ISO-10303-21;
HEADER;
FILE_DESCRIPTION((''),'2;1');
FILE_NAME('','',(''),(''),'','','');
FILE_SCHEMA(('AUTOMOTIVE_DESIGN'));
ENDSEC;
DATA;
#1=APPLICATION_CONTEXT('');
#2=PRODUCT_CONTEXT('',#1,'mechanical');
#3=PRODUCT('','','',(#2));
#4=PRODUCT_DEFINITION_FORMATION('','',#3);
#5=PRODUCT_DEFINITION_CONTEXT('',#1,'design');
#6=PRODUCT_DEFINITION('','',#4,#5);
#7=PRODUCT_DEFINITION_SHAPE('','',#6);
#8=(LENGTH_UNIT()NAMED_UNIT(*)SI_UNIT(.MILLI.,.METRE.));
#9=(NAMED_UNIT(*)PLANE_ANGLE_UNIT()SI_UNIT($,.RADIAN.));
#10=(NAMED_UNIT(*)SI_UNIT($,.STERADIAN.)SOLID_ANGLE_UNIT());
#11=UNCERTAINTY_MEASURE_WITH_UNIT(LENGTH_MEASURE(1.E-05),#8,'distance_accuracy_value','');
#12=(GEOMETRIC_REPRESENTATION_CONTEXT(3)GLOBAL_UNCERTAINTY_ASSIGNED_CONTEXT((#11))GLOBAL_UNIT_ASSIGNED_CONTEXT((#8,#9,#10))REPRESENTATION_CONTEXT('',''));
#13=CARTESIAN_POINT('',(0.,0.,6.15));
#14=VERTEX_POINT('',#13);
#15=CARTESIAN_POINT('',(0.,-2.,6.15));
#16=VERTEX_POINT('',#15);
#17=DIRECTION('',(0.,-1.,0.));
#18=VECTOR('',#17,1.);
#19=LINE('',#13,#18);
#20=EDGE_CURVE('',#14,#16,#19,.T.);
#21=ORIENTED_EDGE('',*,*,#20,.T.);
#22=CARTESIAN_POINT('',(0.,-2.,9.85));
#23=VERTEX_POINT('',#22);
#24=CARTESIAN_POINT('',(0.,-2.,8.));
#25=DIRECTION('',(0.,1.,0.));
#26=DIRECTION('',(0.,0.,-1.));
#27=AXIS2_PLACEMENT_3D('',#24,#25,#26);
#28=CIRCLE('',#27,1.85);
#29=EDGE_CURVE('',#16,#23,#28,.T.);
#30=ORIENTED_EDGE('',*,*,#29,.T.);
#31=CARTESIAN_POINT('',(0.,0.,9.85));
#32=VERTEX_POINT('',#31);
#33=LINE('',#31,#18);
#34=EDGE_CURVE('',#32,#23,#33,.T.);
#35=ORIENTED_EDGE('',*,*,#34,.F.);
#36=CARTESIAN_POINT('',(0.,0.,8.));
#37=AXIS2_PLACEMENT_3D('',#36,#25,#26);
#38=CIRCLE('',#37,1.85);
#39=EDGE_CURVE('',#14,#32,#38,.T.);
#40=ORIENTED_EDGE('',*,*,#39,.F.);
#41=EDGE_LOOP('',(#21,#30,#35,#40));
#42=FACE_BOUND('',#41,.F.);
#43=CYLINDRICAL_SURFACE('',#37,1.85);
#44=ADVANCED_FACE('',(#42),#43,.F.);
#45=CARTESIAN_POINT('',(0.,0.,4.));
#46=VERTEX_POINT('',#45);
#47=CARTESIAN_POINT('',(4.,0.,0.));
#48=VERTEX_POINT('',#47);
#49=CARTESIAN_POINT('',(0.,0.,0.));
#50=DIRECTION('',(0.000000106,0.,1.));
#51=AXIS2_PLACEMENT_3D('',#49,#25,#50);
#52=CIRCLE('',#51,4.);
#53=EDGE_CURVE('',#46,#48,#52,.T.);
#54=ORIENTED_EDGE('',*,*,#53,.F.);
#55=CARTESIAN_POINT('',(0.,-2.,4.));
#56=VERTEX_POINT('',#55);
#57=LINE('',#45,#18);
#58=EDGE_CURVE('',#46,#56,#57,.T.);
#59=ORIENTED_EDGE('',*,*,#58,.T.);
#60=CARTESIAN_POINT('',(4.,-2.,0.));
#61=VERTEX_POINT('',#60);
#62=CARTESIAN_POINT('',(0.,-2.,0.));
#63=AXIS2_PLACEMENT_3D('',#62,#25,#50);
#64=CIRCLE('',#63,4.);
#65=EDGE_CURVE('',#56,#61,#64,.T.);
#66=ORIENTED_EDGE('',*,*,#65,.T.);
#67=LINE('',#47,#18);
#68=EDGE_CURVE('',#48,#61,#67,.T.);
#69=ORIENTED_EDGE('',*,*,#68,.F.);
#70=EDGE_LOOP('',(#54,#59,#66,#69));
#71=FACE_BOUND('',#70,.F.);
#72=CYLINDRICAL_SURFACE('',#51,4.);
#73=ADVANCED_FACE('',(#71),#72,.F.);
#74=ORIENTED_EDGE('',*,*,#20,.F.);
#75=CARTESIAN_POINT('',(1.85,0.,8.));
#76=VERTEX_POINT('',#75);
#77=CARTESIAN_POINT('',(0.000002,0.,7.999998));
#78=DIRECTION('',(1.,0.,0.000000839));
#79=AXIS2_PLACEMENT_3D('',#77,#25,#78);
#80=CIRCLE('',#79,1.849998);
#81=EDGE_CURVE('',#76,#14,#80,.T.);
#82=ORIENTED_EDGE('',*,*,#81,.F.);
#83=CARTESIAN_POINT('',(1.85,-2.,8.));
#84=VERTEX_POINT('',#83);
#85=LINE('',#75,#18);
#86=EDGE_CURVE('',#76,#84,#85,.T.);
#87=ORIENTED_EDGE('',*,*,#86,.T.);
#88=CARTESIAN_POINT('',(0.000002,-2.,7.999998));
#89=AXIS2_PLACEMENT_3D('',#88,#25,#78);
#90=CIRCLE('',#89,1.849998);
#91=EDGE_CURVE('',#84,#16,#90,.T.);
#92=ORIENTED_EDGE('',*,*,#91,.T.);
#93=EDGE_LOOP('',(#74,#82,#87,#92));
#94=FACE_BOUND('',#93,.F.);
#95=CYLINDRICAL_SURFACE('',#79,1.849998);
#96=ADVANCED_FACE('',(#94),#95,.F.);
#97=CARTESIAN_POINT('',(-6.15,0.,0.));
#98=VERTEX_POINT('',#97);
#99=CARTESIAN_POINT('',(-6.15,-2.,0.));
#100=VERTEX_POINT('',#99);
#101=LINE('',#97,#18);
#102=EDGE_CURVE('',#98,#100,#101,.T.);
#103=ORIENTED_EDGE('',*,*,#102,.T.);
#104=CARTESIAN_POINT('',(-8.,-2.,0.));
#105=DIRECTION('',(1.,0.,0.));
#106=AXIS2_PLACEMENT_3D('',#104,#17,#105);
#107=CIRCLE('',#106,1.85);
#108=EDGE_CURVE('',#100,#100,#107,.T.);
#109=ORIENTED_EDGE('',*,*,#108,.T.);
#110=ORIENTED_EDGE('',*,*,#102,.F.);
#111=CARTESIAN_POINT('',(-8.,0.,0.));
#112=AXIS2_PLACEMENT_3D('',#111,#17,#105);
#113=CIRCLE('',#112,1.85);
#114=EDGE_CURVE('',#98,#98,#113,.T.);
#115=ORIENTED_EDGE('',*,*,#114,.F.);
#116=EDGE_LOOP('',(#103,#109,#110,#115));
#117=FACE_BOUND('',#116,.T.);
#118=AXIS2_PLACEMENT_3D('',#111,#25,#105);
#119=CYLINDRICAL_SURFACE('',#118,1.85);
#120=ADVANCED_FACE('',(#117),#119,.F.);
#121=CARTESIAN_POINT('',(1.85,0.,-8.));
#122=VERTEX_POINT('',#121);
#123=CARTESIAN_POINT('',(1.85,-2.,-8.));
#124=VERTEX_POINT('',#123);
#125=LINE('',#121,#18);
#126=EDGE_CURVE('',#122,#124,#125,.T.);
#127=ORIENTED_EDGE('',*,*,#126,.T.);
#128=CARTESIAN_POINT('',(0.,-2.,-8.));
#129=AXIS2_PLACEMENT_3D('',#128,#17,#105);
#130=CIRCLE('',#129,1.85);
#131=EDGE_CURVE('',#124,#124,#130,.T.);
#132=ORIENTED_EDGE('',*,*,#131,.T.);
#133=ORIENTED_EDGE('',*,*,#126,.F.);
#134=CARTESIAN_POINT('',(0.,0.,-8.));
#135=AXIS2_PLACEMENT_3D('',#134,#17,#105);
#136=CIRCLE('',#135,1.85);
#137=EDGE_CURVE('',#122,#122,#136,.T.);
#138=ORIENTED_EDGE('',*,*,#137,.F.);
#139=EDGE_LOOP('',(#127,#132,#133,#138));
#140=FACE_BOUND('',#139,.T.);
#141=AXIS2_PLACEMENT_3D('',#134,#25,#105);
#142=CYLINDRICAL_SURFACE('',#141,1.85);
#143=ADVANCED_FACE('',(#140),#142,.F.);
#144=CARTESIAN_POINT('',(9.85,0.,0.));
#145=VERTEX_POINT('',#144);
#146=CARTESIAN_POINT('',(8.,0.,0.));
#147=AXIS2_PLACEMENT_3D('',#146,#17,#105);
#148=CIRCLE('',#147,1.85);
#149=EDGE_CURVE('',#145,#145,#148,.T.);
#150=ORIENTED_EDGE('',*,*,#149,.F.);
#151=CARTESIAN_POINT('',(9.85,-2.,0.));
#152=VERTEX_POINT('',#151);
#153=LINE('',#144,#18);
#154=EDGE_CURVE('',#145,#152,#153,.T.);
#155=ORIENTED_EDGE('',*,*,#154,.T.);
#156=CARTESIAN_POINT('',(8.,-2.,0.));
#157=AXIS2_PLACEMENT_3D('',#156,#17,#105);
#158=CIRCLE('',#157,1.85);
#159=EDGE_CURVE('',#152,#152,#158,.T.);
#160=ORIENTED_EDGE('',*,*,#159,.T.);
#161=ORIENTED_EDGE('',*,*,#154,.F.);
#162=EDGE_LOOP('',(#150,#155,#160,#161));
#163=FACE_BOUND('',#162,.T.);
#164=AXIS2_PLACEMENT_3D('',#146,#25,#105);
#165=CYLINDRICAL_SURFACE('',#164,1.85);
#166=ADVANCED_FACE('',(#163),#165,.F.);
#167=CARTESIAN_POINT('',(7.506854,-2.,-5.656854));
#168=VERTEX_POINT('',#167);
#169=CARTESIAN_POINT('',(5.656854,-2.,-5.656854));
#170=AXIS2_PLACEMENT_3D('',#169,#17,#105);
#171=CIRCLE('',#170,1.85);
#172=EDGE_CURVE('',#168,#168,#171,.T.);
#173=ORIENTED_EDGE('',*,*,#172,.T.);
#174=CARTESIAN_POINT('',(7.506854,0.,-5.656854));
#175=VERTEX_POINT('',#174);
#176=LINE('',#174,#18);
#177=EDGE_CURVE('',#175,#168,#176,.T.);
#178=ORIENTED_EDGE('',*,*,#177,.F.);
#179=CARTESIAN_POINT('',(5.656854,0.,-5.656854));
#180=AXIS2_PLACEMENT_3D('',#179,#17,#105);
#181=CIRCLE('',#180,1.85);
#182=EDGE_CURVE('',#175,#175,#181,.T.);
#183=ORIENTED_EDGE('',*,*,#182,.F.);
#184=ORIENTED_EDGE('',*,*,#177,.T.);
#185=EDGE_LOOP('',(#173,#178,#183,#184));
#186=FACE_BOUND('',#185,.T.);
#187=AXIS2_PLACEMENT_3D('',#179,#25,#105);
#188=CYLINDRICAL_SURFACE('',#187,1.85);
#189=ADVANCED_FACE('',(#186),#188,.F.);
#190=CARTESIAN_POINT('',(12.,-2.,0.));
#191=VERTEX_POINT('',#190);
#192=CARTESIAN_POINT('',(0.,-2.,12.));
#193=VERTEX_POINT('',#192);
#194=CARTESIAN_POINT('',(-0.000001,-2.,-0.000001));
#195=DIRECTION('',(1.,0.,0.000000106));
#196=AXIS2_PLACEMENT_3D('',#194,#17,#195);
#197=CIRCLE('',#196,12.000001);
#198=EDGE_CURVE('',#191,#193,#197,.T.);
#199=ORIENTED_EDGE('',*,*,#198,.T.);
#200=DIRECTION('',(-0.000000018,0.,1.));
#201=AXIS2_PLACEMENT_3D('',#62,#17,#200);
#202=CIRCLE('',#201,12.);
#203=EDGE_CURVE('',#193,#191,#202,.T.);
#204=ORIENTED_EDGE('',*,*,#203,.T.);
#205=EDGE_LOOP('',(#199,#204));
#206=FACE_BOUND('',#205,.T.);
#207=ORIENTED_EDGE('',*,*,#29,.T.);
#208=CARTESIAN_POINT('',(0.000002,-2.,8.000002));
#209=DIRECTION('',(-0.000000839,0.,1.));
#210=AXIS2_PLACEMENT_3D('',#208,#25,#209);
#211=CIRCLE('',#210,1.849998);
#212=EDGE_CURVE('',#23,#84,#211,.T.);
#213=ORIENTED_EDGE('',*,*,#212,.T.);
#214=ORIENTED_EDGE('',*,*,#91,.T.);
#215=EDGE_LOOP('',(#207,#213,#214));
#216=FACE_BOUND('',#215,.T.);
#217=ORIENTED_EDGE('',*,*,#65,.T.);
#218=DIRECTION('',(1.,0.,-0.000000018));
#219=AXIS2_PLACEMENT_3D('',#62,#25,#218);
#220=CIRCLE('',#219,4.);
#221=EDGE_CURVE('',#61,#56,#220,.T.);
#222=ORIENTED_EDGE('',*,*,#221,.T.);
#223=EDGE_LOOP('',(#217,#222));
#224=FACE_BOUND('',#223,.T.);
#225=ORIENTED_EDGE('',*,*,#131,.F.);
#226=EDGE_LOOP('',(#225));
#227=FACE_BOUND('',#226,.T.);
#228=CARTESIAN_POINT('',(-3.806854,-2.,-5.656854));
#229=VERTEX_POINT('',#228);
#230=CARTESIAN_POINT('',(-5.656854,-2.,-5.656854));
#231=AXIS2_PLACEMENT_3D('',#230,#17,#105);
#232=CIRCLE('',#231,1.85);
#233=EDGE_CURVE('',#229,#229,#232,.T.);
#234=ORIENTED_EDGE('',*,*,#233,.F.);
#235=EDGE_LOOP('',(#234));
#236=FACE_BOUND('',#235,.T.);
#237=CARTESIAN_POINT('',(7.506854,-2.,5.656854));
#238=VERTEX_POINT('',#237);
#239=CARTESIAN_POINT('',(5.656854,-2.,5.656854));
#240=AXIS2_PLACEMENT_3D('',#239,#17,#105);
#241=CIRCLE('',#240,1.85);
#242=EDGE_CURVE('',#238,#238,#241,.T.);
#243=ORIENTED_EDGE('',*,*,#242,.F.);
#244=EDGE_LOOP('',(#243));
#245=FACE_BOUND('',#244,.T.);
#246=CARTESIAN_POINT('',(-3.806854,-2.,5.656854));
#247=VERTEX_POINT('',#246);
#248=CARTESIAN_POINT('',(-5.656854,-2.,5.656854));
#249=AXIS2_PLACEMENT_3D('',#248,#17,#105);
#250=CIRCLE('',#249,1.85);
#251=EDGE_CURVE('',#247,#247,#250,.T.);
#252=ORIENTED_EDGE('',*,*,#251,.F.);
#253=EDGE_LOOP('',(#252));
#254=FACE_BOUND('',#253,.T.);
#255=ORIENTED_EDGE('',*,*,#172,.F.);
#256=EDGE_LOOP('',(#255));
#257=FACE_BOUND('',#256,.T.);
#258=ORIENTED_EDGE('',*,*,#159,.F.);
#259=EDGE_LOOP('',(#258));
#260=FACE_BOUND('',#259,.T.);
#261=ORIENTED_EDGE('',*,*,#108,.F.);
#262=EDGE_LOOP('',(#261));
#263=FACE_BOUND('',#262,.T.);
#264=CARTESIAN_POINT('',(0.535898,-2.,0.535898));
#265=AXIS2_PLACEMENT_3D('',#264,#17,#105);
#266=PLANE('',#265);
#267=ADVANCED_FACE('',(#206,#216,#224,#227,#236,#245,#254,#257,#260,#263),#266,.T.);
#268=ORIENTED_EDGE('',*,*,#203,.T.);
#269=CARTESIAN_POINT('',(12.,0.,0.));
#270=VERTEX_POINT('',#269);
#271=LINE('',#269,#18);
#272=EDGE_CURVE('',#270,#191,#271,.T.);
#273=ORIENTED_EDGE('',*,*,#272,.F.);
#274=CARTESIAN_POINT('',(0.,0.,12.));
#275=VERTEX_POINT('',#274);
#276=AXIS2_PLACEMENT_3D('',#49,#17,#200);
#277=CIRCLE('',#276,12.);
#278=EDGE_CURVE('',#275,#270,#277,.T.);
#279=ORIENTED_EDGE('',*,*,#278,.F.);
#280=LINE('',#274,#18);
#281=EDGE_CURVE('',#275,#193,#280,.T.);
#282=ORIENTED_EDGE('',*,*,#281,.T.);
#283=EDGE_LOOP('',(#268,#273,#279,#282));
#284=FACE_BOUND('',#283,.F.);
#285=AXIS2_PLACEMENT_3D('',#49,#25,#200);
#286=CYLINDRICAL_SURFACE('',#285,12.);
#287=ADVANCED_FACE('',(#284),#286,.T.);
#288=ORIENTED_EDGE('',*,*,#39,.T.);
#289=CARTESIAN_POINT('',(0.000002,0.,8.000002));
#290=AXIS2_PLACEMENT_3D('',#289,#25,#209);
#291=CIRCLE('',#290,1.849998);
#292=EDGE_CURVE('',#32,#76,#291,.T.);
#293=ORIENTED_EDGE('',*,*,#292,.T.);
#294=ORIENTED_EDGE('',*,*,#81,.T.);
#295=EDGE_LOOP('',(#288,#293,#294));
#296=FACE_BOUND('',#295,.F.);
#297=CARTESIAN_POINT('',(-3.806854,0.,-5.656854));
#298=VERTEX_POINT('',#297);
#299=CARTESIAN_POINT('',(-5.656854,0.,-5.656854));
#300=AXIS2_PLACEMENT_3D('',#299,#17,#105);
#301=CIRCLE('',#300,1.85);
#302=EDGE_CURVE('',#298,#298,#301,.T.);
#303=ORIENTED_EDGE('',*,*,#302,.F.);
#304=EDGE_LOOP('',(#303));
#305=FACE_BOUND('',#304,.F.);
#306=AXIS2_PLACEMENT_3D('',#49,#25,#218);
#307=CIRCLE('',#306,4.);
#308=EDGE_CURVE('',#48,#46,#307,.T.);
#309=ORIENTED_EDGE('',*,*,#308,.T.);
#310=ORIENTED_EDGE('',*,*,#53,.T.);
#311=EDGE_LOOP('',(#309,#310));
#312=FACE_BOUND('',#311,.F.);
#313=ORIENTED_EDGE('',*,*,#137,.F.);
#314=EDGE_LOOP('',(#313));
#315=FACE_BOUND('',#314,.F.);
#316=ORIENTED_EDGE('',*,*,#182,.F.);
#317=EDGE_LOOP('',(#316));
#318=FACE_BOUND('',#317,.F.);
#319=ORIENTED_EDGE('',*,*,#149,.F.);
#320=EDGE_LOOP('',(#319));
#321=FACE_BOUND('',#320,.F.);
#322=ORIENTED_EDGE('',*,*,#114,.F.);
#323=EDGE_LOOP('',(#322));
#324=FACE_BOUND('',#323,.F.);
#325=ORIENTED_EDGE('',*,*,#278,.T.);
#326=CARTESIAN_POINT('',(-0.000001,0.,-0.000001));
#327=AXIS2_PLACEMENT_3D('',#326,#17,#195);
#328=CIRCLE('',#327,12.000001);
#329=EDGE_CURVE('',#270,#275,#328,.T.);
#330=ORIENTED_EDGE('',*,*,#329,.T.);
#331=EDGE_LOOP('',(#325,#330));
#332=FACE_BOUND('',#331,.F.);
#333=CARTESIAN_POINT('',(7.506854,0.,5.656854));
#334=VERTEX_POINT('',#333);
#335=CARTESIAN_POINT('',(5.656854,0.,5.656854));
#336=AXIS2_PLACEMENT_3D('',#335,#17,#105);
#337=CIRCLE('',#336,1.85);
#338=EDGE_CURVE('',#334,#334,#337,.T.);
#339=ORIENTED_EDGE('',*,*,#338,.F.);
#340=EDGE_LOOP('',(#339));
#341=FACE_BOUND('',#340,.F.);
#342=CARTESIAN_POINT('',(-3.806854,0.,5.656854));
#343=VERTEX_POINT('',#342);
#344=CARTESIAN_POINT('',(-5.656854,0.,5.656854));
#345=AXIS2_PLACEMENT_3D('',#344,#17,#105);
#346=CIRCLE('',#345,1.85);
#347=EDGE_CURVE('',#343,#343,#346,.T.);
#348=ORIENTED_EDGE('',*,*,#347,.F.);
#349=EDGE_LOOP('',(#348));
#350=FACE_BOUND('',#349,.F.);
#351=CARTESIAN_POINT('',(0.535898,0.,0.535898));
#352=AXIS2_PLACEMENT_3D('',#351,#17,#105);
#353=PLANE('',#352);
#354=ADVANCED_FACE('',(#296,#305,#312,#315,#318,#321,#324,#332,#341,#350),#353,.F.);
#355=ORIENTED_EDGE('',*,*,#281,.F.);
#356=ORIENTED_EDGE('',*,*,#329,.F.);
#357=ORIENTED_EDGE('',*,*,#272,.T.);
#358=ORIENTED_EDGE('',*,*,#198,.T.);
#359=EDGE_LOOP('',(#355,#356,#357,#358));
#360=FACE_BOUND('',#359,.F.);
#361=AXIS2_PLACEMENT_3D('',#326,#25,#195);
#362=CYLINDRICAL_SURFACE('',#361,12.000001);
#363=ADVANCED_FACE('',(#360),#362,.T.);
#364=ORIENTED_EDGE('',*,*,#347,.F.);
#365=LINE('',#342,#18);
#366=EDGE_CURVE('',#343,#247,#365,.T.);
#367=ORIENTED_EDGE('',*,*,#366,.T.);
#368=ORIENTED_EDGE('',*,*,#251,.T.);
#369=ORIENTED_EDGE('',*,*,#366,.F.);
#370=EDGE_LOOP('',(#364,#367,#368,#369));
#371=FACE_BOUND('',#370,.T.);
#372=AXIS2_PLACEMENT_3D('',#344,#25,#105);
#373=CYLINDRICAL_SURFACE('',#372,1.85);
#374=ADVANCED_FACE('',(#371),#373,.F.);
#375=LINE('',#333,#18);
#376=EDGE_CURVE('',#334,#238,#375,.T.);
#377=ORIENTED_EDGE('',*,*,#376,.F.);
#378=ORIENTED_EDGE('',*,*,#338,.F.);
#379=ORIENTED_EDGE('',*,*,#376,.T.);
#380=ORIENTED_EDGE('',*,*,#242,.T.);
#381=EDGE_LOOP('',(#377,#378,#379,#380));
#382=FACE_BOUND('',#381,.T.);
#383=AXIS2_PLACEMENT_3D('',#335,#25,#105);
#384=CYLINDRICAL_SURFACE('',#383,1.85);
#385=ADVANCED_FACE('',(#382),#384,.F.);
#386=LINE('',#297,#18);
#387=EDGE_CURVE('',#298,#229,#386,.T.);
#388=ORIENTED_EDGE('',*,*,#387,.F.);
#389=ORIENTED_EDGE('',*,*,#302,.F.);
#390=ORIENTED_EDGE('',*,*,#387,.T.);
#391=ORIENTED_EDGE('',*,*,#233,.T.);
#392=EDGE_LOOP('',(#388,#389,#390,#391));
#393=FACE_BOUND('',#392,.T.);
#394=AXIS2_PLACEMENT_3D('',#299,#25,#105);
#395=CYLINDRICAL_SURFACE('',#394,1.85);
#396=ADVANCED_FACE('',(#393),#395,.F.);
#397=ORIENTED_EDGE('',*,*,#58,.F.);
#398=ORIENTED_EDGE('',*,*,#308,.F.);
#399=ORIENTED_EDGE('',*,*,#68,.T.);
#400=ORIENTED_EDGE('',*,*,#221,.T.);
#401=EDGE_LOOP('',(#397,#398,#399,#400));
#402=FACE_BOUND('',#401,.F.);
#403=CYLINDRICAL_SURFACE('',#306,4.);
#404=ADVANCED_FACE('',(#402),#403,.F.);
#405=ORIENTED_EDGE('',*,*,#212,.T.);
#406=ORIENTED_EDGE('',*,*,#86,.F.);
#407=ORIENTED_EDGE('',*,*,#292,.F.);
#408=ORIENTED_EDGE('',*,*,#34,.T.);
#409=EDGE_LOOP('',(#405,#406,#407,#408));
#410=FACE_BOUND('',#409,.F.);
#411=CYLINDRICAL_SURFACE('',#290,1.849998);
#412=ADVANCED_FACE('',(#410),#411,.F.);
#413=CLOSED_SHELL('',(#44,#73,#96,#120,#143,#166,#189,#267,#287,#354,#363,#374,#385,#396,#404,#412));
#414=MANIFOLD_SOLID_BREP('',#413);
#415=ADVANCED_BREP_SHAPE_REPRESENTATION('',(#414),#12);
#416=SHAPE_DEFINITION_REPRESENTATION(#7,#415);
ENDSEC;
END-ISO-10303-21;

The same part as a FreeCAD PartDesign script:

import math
import FreeCAD as App
import Part
import Sketcher
from FreeCAD import Vector

doc = App.newDocument("Part")
body = doc.addObject("PartDesign::Body", "Body")

# Sketch on XZ plane
sketch1 = body.newObject("Sketcher::SketchObject", "Sketch")
sketch1.AttachmentSupport = (doc.getObject("XZ_Plane"), [""])
sketch1.MapMode = "FlatFace"
sketch1.addGeometry(Part.ArcOfCircle(Part.Circle(Vector(0, 0, 0), Vector(0, 0, 1), 12), math.radians(90.000001), math.radians(359.999999)), False)
sketch1.addGeometry(Part.ArcOfCircle(Part.Circle(Vector(-0.000001, -0.000001, 0), Vector(0, 0, 1), 12.000001), math.radians(0.000006), math.radians(89.999994)), False)
sketch1.addGeometry(Part.Circle(Vector(-5.656854, -5.656854, 0), Vector(0, 0, 1), 1.85), False)
sketch1.addGeometry(Part.Circle(Vector(-8, 0, 0), Vector(0, 0, 1), 1.85), False)
sketch1.addGeometry(Part.Circle(Vector(0, -8, 0), Vector(0, 0, 1), 1.85), False)
sketch1.addGeometry(Part.Circle(Vector(5.656854, -5.656854, 0), Vector(0, 0, 1), 1.85), False)
sketch1.addGeometry(Part.Circle(Vector(8, 0, 0), Vector(0, 0, 1), 1.85), False)
sketch1.addGeometry(Part.Circle(Vector(-5.656854, 5.656854, 0), Vector(0, 0, 1), 1.85), False)
sketch1.addGeometry(Part.ArcOfCircle(Part.Circle(Vector(0, 0, 0), Vector(0, 0, 1), 4), math.radians(0.000006), math.radians(89.999994)), False)
sketch1.addGeometry(Part.ArcOfCircle(Part.Circle(Vector(0, 0, 0), Vector(0, 0, 1), 4), math.radians(90.000001), math.radians(359.999999)), False)
sketch1.addGeometry(Part.ArcOfCircle(Part.Circle(Vector(0.000002, 7.999998, 0), Vector(0, 0, 1), 1.849998), math.radians(-90.000048), math.radians(0.000048)), False)
sketch1.addGeometry(Part.ArcOfCircle(Part.Circle(Vector(0, 8, 0), Vector(0, 0, 1), 1.85), math.radians(90), math.radians(270)), False)
sketch1.addGeometry(Part.ArcOfCircle(Part.Circle(Vector(0.000002, 8.000002, 0), Vector(0, 0, 1), 1.849998), math.radians(-0.000048), math.radians(90.000048)), False)
sketch1.addGeometry(Part.Circle(Vector(5.656854, 5.656854, 0), Vector(0, 0, 1), 1.85), False)
sketch1.addConstraint(Sketcher.Constraint("Tangent", 0, 1, 1, 2))
sketch1.addConstraint(Sketcher.Constraint("Coincident", 1, 1, 0, 2))
sketch1.addConstraint(Sketcher.Constraint("Tangent", 8, 1, 9, 2))
sketch1.addConstraint(Sketcher.Constraint("Coincident", 9, 1, 8, 2))
sketch1.addConstraint(Sketcher.Constraint("Tangent", 10, 1, 11, 2))
sketch1.addConstraint(Sketcher.Constraint("Tangent", 11, 1, 12, 2))
sketch1.addConstraint(Sketcher.Constraint("Tangent", 12, 1, 10, 2))
sketch1.addConstraint(Sketcher.Constraint("Coincident", 0, 3, -1, 1))
sketch1.addConstraint(Sketcher.Constraint("Coincident", 8, 3, -1, 1))
sketch1.addConstraint(Sketcher.Constraint("Equal", 2, 3))
sketch1.addConstraint(Sketcher.Constraint("Equal", 3, 4))
sketch1.addConstraint(Sketcher.Constraint("Equal", 4, 5))
sketch1.addConstraint(Sketcher.Constraint("Equal", 5, 6))
sketch1.addConstraint(Sketcher.Constraint("Equal", 6, 7))
sketch1.addConstraint(Sketcher.Constraint("Equal", 7, 10))
sketch1.addConstraint(Sketcher.Constraint("Equal", 12, 13))
sketch1.addConstraint(Sketcher.Constraint("Symmetric", 3, 3, 6, 3, -1, 1))
sketch1.addConstraint(Sketcher.Constraint("Symmetric", 5, 3, 7, 3, -1, 1))
sketch1.addConstraint(Sketcher.Constraint("Symmetric", 4, 3, 10, 3, -1, 1))
sketch1.addConstraint(Sketcher.Constraint("Symmetric", 2, 3, 13, 3, -1, 1))
sketch1.addConstraint(Sketcher.Constraint("Symmetric", 2, 3, 5, 3, -2))
sketch1.addConstraint(Sketcher.Constraint("PointOnObject", 3, 3, -1))
sketch1.addConstraint(Sketcher.Constraint("PointOnObject", 4, 3, -2))
sketch1.addConstraint(Sketcher.Constraint("PointOnObject", 0, 1, -2))
sketch1.addConstraint(Sketcher.Constraint("PointOnObject", 1, 1, -1))
sketch1.addConstraint(Sketcher.Constraint("PointOnObject", 8, 1, -1))
sketch1.addConstraint(Sketcher.Constraint("PointOnObject", 9, 1, -2))
sketch1.addConstraint(Sketcher.Constraint("PointOnObject", 10, 1, -2))
sketch1.addConstraint(Sketcher.Constraint("PointOnObject", 11, 1, -2))
sketch1.addConstraint(Sketcher.Constraint("Horizontal", 11, 3, 12, 1))
sketch1.addConstraint(Sketcher.Constraint("Radius", 0, 12.0))
sketch1.addConstraint(Sketcher.Constraint("Radius", 8, 4.0))
sketch1.addConstraint(Sketcher.Constraint("Diameter", 2, 3.7))
sketch1.addConstraint(Sketcher.Constraint("DistanceX", 3, 3, -1, 1, 8.0))
sketch1.addConstraint(Sketcher.Constraint("DistanceY", 4, 3, -1, 1, 8.0))
sketch1.addConstraint(Sketcher.Constraint("DistanceX", 2, 3, -1, 1, 5.656854))
sketch1.addConstraint(Sketcher.Constraint("DistanceY", 2, 3, -1, 1, 5.656854))
pad1 = body.newObject("PartDesign::Pad", "Pad")
pad1.Profile = sketch1
pad1.Length = 2

doc.recompute()
